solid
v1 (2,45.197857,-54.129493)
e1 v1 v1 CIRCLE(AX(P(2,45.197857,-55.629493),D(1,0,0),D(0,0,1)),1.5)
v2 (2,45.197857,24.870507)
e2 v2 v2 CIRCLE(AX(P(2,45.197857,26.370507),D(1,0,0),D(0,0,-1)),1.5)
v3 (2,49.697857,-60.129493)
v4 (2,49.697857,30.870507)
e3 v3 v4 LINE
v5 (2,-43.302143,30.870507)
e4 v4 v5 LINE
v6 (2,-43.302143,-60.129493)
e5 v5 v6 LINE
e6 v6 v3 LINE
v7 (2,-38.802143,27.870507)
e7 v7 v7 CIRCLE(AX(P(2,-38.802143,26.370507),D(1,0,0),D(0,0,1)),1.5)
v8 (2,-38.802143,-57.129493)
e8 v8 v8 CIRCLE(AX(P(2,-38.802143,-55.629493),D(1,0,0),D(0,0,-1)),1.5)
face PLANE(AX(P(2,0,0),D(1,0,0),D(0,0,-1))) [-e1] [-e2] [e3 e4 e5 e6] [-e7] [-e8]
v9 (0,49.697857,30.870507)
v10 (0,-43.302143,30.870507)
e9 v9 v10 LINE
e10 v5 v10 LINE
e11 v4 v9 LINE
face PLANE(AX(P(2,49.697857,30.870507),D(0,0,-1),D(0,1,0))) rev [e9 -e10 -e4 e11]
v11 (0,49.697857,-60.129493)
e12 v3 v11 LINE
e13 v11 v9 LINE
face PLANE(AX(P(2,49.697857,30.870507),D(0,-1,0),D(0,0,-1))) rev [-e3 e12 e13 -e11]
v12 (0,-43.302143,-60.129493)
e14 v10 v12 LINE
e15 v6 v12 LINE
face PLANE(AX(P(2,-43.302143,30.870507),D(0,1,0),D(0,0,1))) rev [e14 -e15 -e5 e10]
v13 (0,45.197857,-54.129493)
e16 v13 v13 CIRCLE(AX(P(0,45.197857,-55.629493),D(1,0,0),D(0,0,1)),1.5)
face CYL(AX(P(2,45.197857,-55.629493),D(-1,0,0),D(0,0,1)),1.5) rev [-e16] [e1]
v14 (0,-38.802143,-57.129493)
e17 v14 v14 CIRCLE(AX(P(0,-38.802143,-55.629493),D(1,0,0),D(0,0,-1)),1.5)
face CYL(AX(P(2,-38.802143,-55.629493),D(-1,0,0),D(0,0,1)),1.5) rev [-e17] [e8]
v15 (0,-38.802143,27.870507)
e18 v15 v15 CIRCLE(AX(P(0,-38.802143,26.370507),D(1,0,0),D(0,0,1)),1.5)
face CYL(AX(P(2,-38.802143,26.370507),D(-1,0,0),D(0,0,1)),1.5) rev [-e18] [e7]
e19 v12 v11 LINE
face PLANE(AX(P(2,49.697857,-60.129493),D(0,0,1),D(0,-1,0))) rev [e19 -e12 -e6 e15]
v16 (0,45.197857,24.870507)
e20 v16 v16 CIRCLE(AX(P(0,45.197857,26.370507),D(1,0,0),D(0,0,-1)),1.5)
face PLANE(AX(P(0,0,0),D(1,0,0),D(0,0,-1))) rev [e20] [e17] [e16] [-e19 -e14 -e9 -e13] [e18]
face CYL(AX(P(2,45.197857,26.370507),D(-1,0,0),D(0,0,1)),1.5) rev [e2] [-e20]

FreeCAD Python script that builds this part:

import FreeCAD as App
import Part
import Sketcher
from FreeCAD import Vector
Q = App.Units.Quantity

doc = App.newDocument("Part")
body = doc.addObject("PartDesign::Body", "Body")

sketch1 = doc.addObject("Sketcher::SketchObject", "Sketch")
body.addObject(sketch1)
sketch1.AttachmentSupport = (doc.YZ_Plane, [""])
sketch1.MapMode = "FlatFace"
sketch1.addGeometry(Part.LineSegment(Vector(49.7, 30.9, 0), Vector(-43.3, 30.9, 0)), False)
sketch1.addGeometry(Part.LineSegment(Vector(-43.3, 30.9, 0), Vector(-43.3, -60.1, 0)), False)
sketch1.addGeometry(Part.LineSegment(Vector(-43.3, -60.1, 0), Vector(49.7, -60.1, 0)), False)
sketch1.addGeometry(Part.LineSegment(Vector(49.7, -60.1, 0), Vector(49.7, 30.9, 0)), False)
sketch1.addGeometry(Part.Circle(Vector(-38.8, 26.4, 0), Vector(0, 0, 1), 1.5), False)
sketch1.addGeometry(Part.Circle(Vector(-38.8, -55.6, 0), Vector(0, 0, 1), 1.5), False)
sketch1.addGeometry(Part.Circle(Vector(45.2, 26.4, 0), Vector(0, 0, 1), 1.5), False)
sketch1.addGeometry(Part.Circle(Vector(45.2, -55.6, 0), Vector(0, 0, 1), 1.5), False)
sketch1.addConstraint(Sketcher.Constraint("Coincident", 0, 2, 1, 1))
sketch1.addConstraint(Sketcher.Constraint("Coincident", 1, 2, 2, 1))
sketch1.addConstraint(Sketcher.Constraint("Coincident", 2, 2, 3, 1))
sketch1.addConstraint(Sketcher.Constraint("Coincident", 3, 2, 0, 1))
sketch1.addConstraint(Sketcher.Constraint("Horizontal", 0))
sketch1.addConstraint(Sketcher.Constraint("Vertical", 1))
sketch1.addConstraint(Sketcher.Constraint("Horizontal", 2))
sketch1.addConstraint(Sketcher.Constraint("Vertical", 3))
sketch1.addConstraint(Sketcher.Constraint("Equal", 4, 5))
sketch1.addConstraint(Sketcher.Constraint("Equal", 5, 6))
sketch1.addConstraint(Sketcher.Constraint("Equal", 6, 7))
sketch1.addConstraint(Sketcher.Constraint("Horizontal", 4, 3, 6, 3))
sketch1.addConstraint(Sketcher.Constraint("Horizontal", 5, 3, 7, 3))
sketch1.addConstraint(Sketcher.Constraint("Vertical", 4, 3, 5, 3))
sketch1.addConstraint(Sketcher.Constraint("Vertical", 6, 3, 7, 3))
sketch1.addConstraint(Sketcher.Constraint("Diameter", 4, Q("3 mm")))
sketch1.addConstraint(Sketcher.Constraint("DistanceX", 0, 2, 0, 1, Q("93 mm")))
sketch1.addConstraint(Sketcher.Constraint("DistanceY", 1, 2, 1, 1, Q("91 mm")))
sketch1.addConstraint(Sketcher.Constraint("DistanceY", 5, 3, 4, 3, Q("82 mm")))
sketch1.addConstraint(Sketcher.Constraint("DistanceX", 4, 3, 6, 3, Q("84 mm")))
sketch1.addConstraint(Sketcher.Constraint("DistanceX", 0, 2, 4, 3, Q("4.5 mm")))
sketch1.addConstraint(Sketcher.Constraint("DistanceY", 4, 3, 0, 2, Q("4.5 mm")))
sketch1.addConstraint(Sketcher.Constraint("DistanceX", 4, 3, -1, 1, Q("38.802143 mm")))
sketch1.addConstraint(Sketcher.Constraint("DistanceY", -1, 1, 4, 3, Q("26.370507 mm")))
pad1 = doc.addObject("PartDesign::Pad", "Pad")
body.addObject(pad1)
pad1.Profile = sketch1
pad1.Length = 2

doc.recompute()
